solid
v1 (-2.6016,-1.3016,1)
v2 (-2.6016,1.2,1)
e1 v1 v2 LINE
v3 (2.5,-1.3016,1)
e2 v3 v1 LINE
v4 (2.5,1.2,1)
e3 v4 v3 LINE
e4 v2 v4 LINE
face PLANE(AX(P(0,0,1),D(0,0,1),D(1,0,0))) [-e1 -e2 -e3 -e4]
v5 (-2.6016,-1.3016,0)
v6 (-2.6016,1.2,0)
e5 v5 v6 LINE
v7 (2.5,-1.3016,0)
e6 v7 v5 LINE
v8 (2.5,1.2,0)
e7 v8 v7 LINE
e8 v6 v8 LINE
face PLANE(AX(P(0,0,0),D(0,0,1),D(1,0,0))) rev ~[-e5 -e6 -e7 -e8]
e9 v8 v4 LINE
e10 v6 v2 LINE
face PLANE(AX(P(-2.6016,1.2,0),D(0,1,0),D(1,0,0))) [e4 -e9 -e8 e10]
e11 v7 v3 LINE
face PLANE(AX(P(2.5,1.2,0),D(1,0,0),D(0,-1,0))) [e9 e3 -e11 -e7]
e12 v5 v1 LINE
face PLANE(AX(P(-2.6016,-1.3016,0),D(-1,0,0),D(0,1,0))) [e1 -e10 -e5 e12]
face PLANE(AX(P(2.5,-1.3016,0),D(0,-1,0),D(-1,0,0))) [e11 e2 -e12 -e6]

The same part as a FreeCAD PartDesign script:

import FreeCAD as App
import Part
import Sketcher

V = App.Vector


def add_polygon(sketch, points):
    """Adds a closed chain of lines whose ends are joined by coincident constraints."""
    first, n = sketch.GeometryCount, len(points)
    for a, b in zip(points, points[1:] + points[:1]):
        sketch.addGeometry(Part.LineSegment(App.Vector(*a, 0), App.Vector(*b, 0)), False)
    for i in range(n):
        sketch.addConstraint(Sketcher.Constraint("Coincident", first + i, 2, first + (i + 1) % n, 1))

doc = App.newDocument("Part")
body = doc.addObject("PartDesign::Body", "Body")

sketch1 = body.newObject("Sketcher::SketchObject", "Sketch")
sketch1.AttachmentSupport = (doc.getObject("XY_Plane"), [""])
sketch1.MapMode = "FlatFace"
add_polygon(sketch1, [(2.5, 1.2), (-2.6016, 1.2), (-2.6016, -1.3016), (2.5, -1.3016)])
sketch1.addConstraint([
    Sketcher.Constraint("Horizontal", 0),
    Sketcher.Constraint("Vertical", 1),
    Sketcher.Constraint("Horizontal", 2),
    Sketcher.Constraint("Vertical", 3),
    Sketcher.Constraint("DistanceY", -1, 1, 0, 2, 1.2),
    Sketcher.Constraint("DistanceX", -1, 1, 2, 2, 2.5),
    Sketcher.Constraint("DistanceX", 0, 2, 0, 1, 5.1016),
    Sketcher.Constraint("DistanceY", 1, 2, 1, 1, 2.5016),
])
pad1 = body.newObject("PartDesign::Pad", "Pad")
pad1.Profile = sketch1
pad1.Length = 1

doc.recompute()
